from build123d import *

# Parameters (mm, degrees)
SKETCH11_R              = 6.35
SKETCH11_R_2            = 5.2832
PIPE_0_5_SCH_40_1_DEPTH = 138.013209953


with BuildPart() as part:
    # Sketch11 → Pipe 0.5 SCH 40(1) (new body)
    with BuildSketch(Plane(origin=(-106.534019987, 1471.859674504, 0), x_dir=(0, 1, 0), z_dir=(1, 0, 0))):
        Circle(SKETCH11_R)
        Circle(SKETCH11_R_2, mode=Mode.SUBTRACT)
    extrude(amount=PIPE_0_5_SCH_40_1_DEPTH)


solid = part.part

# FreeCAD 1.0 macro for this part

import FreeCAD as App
import Part
import Sketcher
from FreeCAD import Vector
Q = App.Units.Quantity

doc = App.newDocument("Part")
body = doc.addObject("PartDesign::Body", "Body")

# Sketch on YZ plane
sketch1 = body.newObject("Sketcher::SketchObject", "Sketch")
sketch1.AttachmentSupport = (doc.getObject("YZ_Plane"), [""])
sketch1.MapMode = "FlatFace"
sketch1.AttachmentOffset = App.Placement(Vector(0, 0, -106.53402), App.Rotation())
sketch1.addGeometry(Part.Circle(Vector(1472, 0, 0), Vector(0, 0, 1), 6), False)
sketch1.addGeometry(Part.Circle(Vector(1472, 0, 0), Vector(0, 0, 1), 5), False)
sketch1.addConstraint(Sketcher.Constraint("Coincident", 1, 3, 0, 3))
sketch1.addConstraint(Sketcher.Constraint("PointOnObject", 0, 3, -1))
sketch1.addConstraint(Sketcher.Constraint("Diameter", 0, Q("0.5 in")))
sketch1.addConstraint(Sketcher.Constraint("Diameter", 1, Q("0.416 in")))
sketch1.addConstraint(Sketcher.Constraint("DistanceX", -1, 1, 0, 3, Q("1471.859675 mm")))
pad1 = body.newObject("PartDesign::Pad", "Pad")
pad1.Profile = sketch1
pad1.Length = 138.01321

doc.recompute()
